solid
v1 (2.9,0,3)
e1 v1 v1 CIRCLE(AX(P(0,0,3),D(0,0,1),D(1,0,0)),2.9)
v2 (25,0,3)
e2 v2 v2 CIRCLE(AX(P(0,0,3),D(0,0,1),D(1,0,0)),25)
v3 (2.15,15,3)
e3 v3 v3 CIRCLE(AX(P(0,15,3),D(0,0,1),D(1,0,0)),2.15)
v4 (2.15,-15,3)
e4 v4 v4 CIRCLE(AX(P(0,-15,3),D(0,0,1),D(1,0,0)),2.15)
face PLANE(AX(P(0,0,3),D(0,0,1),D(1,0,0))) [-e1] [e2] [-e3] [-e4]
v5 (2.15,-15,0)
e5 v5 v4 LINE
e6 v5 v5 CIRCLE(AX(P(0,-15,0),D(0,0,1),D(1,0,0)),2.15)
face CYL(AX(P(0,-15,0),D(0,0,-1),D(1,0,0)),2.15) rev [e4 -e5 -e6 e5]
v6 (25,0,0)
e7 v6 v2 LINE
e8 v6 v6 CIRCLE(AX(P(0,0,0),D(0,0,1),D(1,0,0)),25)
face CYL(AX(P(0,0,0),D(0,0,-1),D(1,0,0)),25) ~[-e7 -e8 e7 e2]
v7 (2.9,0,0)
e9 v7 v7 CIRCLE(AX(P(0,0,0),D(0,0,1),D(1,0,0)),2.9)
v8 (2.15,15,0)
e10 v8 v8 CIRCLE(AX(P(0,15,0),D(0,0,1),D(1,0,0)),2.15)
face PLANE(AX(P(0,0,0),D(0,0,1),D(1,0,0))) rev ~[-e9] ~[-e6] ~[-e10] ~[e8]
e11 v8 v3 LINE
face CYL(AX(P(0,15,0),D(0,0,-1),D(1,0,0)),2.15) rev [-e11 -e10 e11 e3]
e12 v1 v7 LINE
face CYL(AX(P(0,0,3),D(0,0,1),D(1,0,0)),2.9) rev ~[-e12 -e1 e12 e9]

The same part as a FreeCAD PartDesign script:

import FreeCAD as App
import Part
import Sketcher
Q = App.Units.Quantity

doc = App.newDocument("Part")
params = doc.addObject("Spreadsheet::Sheet", "Params")
for row, (alias, value) in enumerate([
    ("sketch1_diameter", "50 mm"),
    ("sketch1_diameter2", "4.3 mm"),
    ("pad1_length", "3 mm"),
    ("sketch2_diameter", "5.8 mm"),
], start=1):
    params.set(f"A{row}", alias)
    params.set(f"B{row}", "=" + value)
    params.setAlias(f"B{row}", alias)

body = doc.addObject("PartDesign::Body", "Body")

# Sketch on XY plane
sketch1 = body.newObject("Sketcher::SketchObject", "Sketch")
sketch1.AttachmentSupport = (doc.getObject("XY_Plane"), [""])
sketch1.MapMode = "FlatFace"
sketch1.addGeometry(Part.Circle(App.Vector(0, 0, 0), App.Vector(0, 0, 1), 25), False)
sketch1.addGeometry(Part.Circle(App.Vector(0, -15, 0), App.Vector(0, 0, 1), 2.1), False)
sketch1.addGeometry(Part.Circle(App.Vector(0, 15, 0), App.Vector(0, 0, 1), 2.1), False)
sketch1.addConstraint(Sketcher.Constraint("Coincident", 0, 3, -1, 1))
sketch1.addConstraint(Sketcher.Constraint("Equal", 1, 2))
sketch1.addConstraint(Sketcher.Constraint("Symmetric", 1, 3, 2, 3, -1, 1))
sketch1.addConstraint(Sketcher.Constraint("PointOnObject", 1, 3, -2))
sketch1.addConstraint(Sketcher.Constraint("Diameter", 0, Q("50 mm")))
sketch1.addConstraint(Sketcher.Constraint("Diameter", 1, Q("4.3 mm")))
sketch1.addConstraint(Sketcher.Constraint("DistanceY", 1, 3, -1, 1, Q("15 mm")))
sketch1.setExpression("Constraints[4]", "Params.sketch1_diameter")
sketch1.setExpression("Constraints[5]", "Params.sketch1_diameter2")
pad1 = body.newObject("PartDesign::Pad", "Pad")
pad1.Profile = sketch1
pad1.setExpression("Length", "Params.pad1_length")

# Sketch on XY plane
sketch2 = body.newObject("Sketcher::SketchObject", "Sketch001")
sketch2.AttachmentSupport = (doc.getObject("XY_Plane"), [""])
sketch2.MapMode = "FlatFace"
sketch2.AttachmentOffset = App.Placement(App.Vector(0, 0, 3), App.Rotation())
sketch2.addGeometry(Part.Circle(App.Vector(0, 0, 0), App.Vector(0, 0, 1), 2.9), False)
sketch2.addConstraint(Sketcher.Constraint("Coincident", 0, 3, -1, 1))
sketch2.addConstraint(Sketcher.Constraint("Diameter", 0, Q("5.8 mm")))
sketch2.setExpression("Constraints[1]", "Params.sketch2_diameter")
pocket1 = body.newObject("PartDesign::Pocket", "Pocket")
pocket1.Profile = sketch2
pocket1.Type = "ThroughAll"

doc.recompute()
